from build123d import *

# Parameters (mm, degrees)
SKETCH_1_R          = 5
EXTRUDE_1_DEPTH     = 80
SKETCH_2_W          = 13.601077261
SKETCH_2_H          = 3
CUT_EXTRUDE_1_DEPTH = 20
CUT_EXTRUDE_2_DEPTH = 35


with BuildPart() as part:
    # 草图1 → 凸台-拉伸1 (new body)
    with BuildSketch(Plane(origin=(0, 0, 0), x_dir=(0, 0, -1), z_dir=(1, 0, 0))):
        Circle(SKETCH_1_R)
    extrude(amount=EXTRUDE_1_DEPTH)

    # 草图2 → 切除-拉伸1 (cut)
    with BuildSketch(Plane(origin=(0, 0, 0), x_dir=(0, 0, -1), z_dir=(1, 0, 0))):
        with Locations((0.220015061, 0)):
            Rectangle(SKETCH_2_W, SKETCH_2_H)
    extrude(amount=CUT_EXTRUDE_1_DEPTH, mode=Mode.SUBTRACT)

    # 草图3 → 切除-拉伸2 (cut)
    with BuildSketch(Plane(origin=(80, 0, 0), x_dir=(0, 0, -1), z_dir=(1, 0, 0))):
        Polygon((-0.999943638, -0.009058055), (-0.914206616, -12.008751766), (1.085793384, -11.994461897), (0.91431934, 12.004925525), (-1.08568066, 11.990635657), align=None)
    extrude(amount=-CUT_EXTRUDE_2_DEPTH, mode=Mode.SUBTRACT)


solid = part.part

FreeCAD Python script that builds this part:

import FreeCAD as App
import Part
import Sketcher
from FreeCAD import Vector
Q = App.Units.Quantity

doc = App.newDocument("Part")
body = doc.addObject("PartDesign::Body", "Body")

sketch1 = doc.addObject("Sketcher::SketchObject", "Sketch")
body.addObject(sketch1)
sketch1.AttachmentSupport = (doc.YZ_Plane, [""])
sketch1.MapMode = "FlatFace"
sketch1.addGeometry(Part.Circle(Vector(0, 0, 0), Vector(0, 0, 1), 5), False)
sketch1.addConstraint([
    Sketcher.Constraint("Coincident", 0, 3, -1, 1),
    Sketcher.Constraint("Diameter", 0, Q("10 mm")),
])
pad1 = doc.addObject("PartDesign::Pad", "Pad")
body.addObject(pad1)
pad1.Profile = sketch1
pad1.Length = 80

sketch2 = doc.addObject("Sketcher::SketchObject", "Sketch001")
body.addObject(sketch2)
sketch2.AttachmentSupport = (doc.YZ_Plane, [""])
sketch2.MapMode = "FlatFace"
sketch2.addGeometry([
    Part.LineSegment(Vector(1.5, 6.6, 0), Vector(-1.5, 6.6, 0)),
    Part.LineSegment(Vector(-1.5, 6.6, 0), Vector(-1.5, -7, 0)),
    Part.LineSegment(Vector(-1.5, -7, 0), Vector(1.5, -7, 0)),
    Part.LineSegment(Vector(1.5, -7, 0), Vector(1.5, 6.6, 0)),
], False)
sketch2.addConstraint([
    Sketcher.Constraint("Coincident", 0, 2, 1, 1),
    Sketcher.Constraint("Coincident", 1, 2, 2, 1),
    Sketcher.Constraint("Coincident", 2, 2, 3, 1),
    Sketcher.Constraint("Coincident", 3, 2, 0, 1),
    Sketcher.Constraint("Horizontal", 0),
    Sketcher.Constraint("Vertical", 1),
    Sketcher.Constraint("Horizontal", 2),
    Sketcher.Constraint("Vertical", 3),
    Sketcher.Constraint("DistanceX", 0, 2, 0, 1, Q("3 mm")),
    Sketcher.Constraint("DistanceX", 0, 2, -1, 1, Q("1.5 mm")),
    Sketcher.Constraint("DistanceY", 1, 2, 1, 1, Q("13.601077 mm")),
    Sketcher.Constraint("DistanceY", -1, 1, 0, 2, Q("6.580524 mm")),
])
pocket1 = doc.addObject("PartDesign::Pocket", "Pocket")
body.addObject(pocket1)
pocket1.Profile = sketch2
pocket1.Length = 20
pocket1.Reversed = True

sketch3 = doc.addObject("Sketcher::SketchObject", "Sketch002")
body.addObject(sketch3)
sketch3.AttachmentSupport = (doc.YZ_Plane, [""])
sketch3.MapMode = "FlatFace"
sketch3.AttachmentOffset = App.Placement(Vector(0, 0, 80), App.Rotation())
sketch3.addGeometry([
    Part.LineSegment(Vector(-12, 0.9, 0), Vector(-12, -1.1, 0)),
    Part.LineSegment(Vector(-12, -1.1, 0), Vector(12, -0.9, 0)),
    Part.LineSegment(Vector(12, -0.9, 0), Vector(12, 1.1, 0)),
    Part.LineSegment(Vector(12, 1.1, 0), Vector(-12, 0.9, 0)),
], False)
sketch3.addConstraint([
    Sketcher.Constraint("Coincident", 0, 2, 1, 1),
    Sketcher.Constraint("Coincident", 1, 2, 2, 1),
    Sketcher.Constraint("Coincident", 2, 2, 3, 1),
    Sketcher.Constraint("Coincident", 3, 2, 0, 1),
    Sketcher.Constraint("Perpendicular", 0, 1),
    Sketcher.Constraint("Perpendicular", 1, 2),
    Sketcher.Constraint("Perpendicular", 2, 3),
    Sketcher.Constraint("Distance", 1, Q("24 mm")),
    Sketcher.Constraint("DistanceY", 1, 2, 2, 2, Q("2 mm")),
    Sketcher.Constraint("DistanceX", 0, 2, -1, 1, Q("11.994462 mm")),
    Sketcher.Constraint("DistanceY", 1, 2, -1, 1, Q("0.914319 mm")),
    Sketcher.Constraint("DistanceX", 3, 2, -1, 1, Q("12.008752 mm")),
])
pocket2 = doc.addObject("PartDesign::Pocket", "Pocket001")
body.addObject(pocket2)
pocket2.Profile = sketch3
pocket2.Length = 35

doc.recompute()
